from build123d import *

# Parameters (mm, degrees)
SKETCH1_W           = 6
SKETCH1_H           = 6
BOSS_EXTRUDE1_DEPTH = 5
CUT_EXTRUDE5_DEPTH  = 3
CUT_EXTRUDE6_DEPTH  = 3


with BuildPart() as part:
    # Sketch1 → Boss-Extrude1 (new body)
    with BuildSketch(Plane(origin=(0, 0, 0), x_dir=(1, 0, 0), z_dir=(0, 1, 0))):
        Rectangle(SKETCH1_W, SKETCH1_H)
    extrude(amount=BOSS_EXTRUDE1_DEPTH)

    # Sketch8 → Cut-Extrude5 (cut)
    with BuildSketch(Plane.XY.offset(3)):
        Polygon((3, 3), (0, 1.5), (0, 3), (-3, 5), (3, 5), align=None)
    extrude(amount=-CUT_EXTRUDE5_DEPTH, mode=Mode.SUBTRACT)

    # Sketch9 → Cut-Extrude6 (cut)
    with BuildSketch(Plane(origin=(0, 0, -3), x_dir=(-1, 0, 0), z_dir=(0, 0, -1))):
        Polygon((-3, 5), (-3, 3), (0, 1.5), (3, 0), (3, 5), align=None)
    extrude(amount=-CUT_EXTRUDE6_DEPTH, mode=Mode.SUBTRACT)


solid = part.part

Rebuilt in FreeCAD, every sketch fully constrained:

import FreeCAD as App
import Part
import Sketcher

doc = App.newDocument("Part")
body = doc.addObject("PartDesign::Body", "Body")

# Sketch on XZ plane
sketch1 = doc.addObject("Sketcher::SketchObject", "Sketch")
body.addObject(sketch1)
sketch1.AttachmentSupport = (doc.XZ_Plane, [""])
sketch1.MapMode = "FlatFace"
sketch1.addGeometry(Part.LineSegment(App.Vector(-3, -3, 0), App.Vector(-3, 3, 0)), False)
sketch1.addGeometry(Part.LineSegment(App.Vector(-3, 3, 0), App.Vector(3, 3, 0)), False)
sketch1.addGeometry(Part.LineSegment(App.Vector(3, 3, 0), App.Vector(3, -3, 0)), False)
sketch1.addGeometry(Part.LineSegment(App.Vector(3, -3, 0), App.Vector(-3, -3, 0)), False)
sketch1.addConstraint(Sketcher.Constraint("Coincident", 0, 2, 1, 1))
sketch1.addConstraint(Sketcher.Constraint("Coincident", 1, 2, 2, 1))
sketch1.addConstraint(Sketcher.Constraint("Coincident", 2, 2, 3, 1))
sketch1.addConstraint(Sketcher.Constraint("Coincident", 3, 2, 0, 1))
sketch1.addConstraint(Sketcher.Constraint("Vertical", 0))
sketch1.addConstraint(Sketcher.Constraint("Horizontal", 1))
sketch1.addConstraint(Sketcher.Constraint("Vertical", 2))
sketch1.addConstraint(Sketcher.Constraint("Horizontal", 3))
sketch1.addConstraint(Sketcher.Constraint("Symmetric", 0, 2, 2, 2, -1, 1))
sketch1.addConstraint(Sketcher.Constraint("Equal", 3, 0))
sketch1.addConstraint(Sketcher.Constraint("DistanceX", 1, 1, 1, 2, 6.0))
pad1 = doc.addObject("PartDesign::Pad", "Pad")
body.addObject(pad1)
pad1.Profile = sketch1
pad1.Length = 5
pad1.Reversed = True

# Sketch on XY plane
sketch2 = doc.addObject("Sketcher::SketchObject", "Sketch001")
body.addObject(sketch2)
sketch2.AttachmentSupport = (doc.XY_Plane, [""])
sketch2.MapMode = "FlatFace"
sketch2.AttachmentOffset = App.Placement(App.Vector(0, 0, 3), App.Rotation())
sketch2.addGeometry(Part.LineSegment(App.Vector(0, 1.5, 0), App.Vector(3, 3, 0)), False)
sketch2.addGeometry(Part.LineSegment(App.Vector(3, 3, 0), App.Vector(3, 5, 0)), False)
sketch2.addGeometry(Part.LineSegment(App.Vector(3, 5, 0), App.Vector(-3, 5, 0)), False)
sketch2.addGeometry(Part.LineSegment(App.Vector(-3, 5, 0), App.Vector(0, 3, 0)), False)
sketch2.addGeometry(Part.LineSegment(App.Vector(0, 3, 0), App.Vector(0, 1.5, 0)), False)
sketch2.addConstraint(Sketcher.Constraint("Coincident", 0, 2, 1, 1))
sketch2.addConstraint(Sketcher.Constraint("Coincident", 1, 2, 2, 1))
sketch2.addConstraint(Sketcher.Constraint("Coincident", 2, 2, 3, 1))
sketch2.addConstraint(Sketcher.Constraint("Coincident", 3, 2, 4, 1))
sketch2.addConstraint(Sketcher.Constraint("Coincident", 4, 2, 0, 1))
sketch2.addConstraint(Sketcher.Constraint("Vertical", 1))
sketch2.addConstraint(Sketcher.Constraint("Horizontal", 2))
sketch2.addConstraint(Sketcher.Constraint("Vertical", 4))
sketch2.addConstraint(Sketcher.Constraint("PointOnObject", 3, 2, -2))
sketch2.addConstraint(Sketcher.Constraint("Horizontal", 0, 2, 3, 2))
sketch2.addConstraint(Sketcher.Constraint("DistanceX", 2, 2, 2, 1, 6.0))
sketch2.addConstraint(Sketcher.Constraint("DistanceY", 1, 1, 1, 2, 2.0))
sketch2.addConstraint(Sketcher.Constraint("DistanceY", 4, 2, 4, 1, 1.5))
sketch2.addConstraint(Sketcher.Constraint("DistanceX", -1, 1, 0, 2, 3.0))
sketch2.addConstraint(Sketcher.Constraint("DistanceY", -1, 1, 0, 2, 3.0))
pocket1 = doc.addObject("PartDesign::Pocket", "Pocket")
body.addObject(pocket1)
pocket1.Profile = sketch2
pocket1.Length = 3

# Sketch on XY plane
sketch3 = doc.addObject("Sketcher::SketchObject", "Sketch002")
body.addObject(sketch3)
sketch3.AttachmentSupport = (doc.XY_Plane, [""])
sketch3.MapMode = "FlatFace"
sketch3.AttachmentOffset = App.Placement(App.Vector(0, 0, -3), App.Rotation())
sketch3.addGeometry(Part.LineSegment(App.Vector(3, 5, 0), App.Vector(3, 3, 0)), False)
sketch3.addGeometry(Part.LineSegment(App.Vector(3, 3, 0), App.Vector(-3, 0, 0)), False)
sketch3.addGeometry(Part.LineSegment(App.Vector(-3, 0, 0), App.Vector(-3, 5, 0)), False)
sketch3.addGeometry(Part.LineSegment(App.Vector(-3, 5, 0), App.Vector(3, 5, 0)), False)
sketch3.addConstraint(Sketcher.Constraint("Coincident", 0, 2, 1, 1))
sketch3.addConstraint(Sketcher.Constraint("Coincident", 1, 2, 2, 1))
sketch3.addConstraint(Sketcher.Constraint("Coincident", 2, 2, 3, 1))
sketch3.addConstraint(Sketcher.Constraint("Coincident", 3, 2, 0, 1))
sketch3.addConstraint(Sketcher.Constraint("Vertical", 0))
sketch3.addConstraint(Sketcher.Constraint("Vertical", 2))
sketch3.addConstraint(Sketcher.Constraint("Horizontal", 3))
sketch3.addConstraint(Sketcher.Constraint("PointOnObject", 1, 2, -1))
sketch3.addConstraint(Sketcher.Constraint("DistanceX", 3, 1, 3, 2, 6.0))
sketch3.addConstraint(Sketcher.Constraint("DistanceY", 0, 2, 0, 1, 2.0))
sketch3.addConstraint(Sketcher.Constraint("DistanceY", 2, 1, 2, 2, 5.0))
sketch3.addConstraint(Sketcher.Constraint("DistanceX", -1, 1, 0, 2, 3.0))
pocket2 = doc.addObject("PartDesign::Pocket", "Pocket001")
body.addObject(pocket2)
pocket2.Profile = sketch3
pocket2.Length = 3
pocket2.Reversed = True

doc.recompute()
